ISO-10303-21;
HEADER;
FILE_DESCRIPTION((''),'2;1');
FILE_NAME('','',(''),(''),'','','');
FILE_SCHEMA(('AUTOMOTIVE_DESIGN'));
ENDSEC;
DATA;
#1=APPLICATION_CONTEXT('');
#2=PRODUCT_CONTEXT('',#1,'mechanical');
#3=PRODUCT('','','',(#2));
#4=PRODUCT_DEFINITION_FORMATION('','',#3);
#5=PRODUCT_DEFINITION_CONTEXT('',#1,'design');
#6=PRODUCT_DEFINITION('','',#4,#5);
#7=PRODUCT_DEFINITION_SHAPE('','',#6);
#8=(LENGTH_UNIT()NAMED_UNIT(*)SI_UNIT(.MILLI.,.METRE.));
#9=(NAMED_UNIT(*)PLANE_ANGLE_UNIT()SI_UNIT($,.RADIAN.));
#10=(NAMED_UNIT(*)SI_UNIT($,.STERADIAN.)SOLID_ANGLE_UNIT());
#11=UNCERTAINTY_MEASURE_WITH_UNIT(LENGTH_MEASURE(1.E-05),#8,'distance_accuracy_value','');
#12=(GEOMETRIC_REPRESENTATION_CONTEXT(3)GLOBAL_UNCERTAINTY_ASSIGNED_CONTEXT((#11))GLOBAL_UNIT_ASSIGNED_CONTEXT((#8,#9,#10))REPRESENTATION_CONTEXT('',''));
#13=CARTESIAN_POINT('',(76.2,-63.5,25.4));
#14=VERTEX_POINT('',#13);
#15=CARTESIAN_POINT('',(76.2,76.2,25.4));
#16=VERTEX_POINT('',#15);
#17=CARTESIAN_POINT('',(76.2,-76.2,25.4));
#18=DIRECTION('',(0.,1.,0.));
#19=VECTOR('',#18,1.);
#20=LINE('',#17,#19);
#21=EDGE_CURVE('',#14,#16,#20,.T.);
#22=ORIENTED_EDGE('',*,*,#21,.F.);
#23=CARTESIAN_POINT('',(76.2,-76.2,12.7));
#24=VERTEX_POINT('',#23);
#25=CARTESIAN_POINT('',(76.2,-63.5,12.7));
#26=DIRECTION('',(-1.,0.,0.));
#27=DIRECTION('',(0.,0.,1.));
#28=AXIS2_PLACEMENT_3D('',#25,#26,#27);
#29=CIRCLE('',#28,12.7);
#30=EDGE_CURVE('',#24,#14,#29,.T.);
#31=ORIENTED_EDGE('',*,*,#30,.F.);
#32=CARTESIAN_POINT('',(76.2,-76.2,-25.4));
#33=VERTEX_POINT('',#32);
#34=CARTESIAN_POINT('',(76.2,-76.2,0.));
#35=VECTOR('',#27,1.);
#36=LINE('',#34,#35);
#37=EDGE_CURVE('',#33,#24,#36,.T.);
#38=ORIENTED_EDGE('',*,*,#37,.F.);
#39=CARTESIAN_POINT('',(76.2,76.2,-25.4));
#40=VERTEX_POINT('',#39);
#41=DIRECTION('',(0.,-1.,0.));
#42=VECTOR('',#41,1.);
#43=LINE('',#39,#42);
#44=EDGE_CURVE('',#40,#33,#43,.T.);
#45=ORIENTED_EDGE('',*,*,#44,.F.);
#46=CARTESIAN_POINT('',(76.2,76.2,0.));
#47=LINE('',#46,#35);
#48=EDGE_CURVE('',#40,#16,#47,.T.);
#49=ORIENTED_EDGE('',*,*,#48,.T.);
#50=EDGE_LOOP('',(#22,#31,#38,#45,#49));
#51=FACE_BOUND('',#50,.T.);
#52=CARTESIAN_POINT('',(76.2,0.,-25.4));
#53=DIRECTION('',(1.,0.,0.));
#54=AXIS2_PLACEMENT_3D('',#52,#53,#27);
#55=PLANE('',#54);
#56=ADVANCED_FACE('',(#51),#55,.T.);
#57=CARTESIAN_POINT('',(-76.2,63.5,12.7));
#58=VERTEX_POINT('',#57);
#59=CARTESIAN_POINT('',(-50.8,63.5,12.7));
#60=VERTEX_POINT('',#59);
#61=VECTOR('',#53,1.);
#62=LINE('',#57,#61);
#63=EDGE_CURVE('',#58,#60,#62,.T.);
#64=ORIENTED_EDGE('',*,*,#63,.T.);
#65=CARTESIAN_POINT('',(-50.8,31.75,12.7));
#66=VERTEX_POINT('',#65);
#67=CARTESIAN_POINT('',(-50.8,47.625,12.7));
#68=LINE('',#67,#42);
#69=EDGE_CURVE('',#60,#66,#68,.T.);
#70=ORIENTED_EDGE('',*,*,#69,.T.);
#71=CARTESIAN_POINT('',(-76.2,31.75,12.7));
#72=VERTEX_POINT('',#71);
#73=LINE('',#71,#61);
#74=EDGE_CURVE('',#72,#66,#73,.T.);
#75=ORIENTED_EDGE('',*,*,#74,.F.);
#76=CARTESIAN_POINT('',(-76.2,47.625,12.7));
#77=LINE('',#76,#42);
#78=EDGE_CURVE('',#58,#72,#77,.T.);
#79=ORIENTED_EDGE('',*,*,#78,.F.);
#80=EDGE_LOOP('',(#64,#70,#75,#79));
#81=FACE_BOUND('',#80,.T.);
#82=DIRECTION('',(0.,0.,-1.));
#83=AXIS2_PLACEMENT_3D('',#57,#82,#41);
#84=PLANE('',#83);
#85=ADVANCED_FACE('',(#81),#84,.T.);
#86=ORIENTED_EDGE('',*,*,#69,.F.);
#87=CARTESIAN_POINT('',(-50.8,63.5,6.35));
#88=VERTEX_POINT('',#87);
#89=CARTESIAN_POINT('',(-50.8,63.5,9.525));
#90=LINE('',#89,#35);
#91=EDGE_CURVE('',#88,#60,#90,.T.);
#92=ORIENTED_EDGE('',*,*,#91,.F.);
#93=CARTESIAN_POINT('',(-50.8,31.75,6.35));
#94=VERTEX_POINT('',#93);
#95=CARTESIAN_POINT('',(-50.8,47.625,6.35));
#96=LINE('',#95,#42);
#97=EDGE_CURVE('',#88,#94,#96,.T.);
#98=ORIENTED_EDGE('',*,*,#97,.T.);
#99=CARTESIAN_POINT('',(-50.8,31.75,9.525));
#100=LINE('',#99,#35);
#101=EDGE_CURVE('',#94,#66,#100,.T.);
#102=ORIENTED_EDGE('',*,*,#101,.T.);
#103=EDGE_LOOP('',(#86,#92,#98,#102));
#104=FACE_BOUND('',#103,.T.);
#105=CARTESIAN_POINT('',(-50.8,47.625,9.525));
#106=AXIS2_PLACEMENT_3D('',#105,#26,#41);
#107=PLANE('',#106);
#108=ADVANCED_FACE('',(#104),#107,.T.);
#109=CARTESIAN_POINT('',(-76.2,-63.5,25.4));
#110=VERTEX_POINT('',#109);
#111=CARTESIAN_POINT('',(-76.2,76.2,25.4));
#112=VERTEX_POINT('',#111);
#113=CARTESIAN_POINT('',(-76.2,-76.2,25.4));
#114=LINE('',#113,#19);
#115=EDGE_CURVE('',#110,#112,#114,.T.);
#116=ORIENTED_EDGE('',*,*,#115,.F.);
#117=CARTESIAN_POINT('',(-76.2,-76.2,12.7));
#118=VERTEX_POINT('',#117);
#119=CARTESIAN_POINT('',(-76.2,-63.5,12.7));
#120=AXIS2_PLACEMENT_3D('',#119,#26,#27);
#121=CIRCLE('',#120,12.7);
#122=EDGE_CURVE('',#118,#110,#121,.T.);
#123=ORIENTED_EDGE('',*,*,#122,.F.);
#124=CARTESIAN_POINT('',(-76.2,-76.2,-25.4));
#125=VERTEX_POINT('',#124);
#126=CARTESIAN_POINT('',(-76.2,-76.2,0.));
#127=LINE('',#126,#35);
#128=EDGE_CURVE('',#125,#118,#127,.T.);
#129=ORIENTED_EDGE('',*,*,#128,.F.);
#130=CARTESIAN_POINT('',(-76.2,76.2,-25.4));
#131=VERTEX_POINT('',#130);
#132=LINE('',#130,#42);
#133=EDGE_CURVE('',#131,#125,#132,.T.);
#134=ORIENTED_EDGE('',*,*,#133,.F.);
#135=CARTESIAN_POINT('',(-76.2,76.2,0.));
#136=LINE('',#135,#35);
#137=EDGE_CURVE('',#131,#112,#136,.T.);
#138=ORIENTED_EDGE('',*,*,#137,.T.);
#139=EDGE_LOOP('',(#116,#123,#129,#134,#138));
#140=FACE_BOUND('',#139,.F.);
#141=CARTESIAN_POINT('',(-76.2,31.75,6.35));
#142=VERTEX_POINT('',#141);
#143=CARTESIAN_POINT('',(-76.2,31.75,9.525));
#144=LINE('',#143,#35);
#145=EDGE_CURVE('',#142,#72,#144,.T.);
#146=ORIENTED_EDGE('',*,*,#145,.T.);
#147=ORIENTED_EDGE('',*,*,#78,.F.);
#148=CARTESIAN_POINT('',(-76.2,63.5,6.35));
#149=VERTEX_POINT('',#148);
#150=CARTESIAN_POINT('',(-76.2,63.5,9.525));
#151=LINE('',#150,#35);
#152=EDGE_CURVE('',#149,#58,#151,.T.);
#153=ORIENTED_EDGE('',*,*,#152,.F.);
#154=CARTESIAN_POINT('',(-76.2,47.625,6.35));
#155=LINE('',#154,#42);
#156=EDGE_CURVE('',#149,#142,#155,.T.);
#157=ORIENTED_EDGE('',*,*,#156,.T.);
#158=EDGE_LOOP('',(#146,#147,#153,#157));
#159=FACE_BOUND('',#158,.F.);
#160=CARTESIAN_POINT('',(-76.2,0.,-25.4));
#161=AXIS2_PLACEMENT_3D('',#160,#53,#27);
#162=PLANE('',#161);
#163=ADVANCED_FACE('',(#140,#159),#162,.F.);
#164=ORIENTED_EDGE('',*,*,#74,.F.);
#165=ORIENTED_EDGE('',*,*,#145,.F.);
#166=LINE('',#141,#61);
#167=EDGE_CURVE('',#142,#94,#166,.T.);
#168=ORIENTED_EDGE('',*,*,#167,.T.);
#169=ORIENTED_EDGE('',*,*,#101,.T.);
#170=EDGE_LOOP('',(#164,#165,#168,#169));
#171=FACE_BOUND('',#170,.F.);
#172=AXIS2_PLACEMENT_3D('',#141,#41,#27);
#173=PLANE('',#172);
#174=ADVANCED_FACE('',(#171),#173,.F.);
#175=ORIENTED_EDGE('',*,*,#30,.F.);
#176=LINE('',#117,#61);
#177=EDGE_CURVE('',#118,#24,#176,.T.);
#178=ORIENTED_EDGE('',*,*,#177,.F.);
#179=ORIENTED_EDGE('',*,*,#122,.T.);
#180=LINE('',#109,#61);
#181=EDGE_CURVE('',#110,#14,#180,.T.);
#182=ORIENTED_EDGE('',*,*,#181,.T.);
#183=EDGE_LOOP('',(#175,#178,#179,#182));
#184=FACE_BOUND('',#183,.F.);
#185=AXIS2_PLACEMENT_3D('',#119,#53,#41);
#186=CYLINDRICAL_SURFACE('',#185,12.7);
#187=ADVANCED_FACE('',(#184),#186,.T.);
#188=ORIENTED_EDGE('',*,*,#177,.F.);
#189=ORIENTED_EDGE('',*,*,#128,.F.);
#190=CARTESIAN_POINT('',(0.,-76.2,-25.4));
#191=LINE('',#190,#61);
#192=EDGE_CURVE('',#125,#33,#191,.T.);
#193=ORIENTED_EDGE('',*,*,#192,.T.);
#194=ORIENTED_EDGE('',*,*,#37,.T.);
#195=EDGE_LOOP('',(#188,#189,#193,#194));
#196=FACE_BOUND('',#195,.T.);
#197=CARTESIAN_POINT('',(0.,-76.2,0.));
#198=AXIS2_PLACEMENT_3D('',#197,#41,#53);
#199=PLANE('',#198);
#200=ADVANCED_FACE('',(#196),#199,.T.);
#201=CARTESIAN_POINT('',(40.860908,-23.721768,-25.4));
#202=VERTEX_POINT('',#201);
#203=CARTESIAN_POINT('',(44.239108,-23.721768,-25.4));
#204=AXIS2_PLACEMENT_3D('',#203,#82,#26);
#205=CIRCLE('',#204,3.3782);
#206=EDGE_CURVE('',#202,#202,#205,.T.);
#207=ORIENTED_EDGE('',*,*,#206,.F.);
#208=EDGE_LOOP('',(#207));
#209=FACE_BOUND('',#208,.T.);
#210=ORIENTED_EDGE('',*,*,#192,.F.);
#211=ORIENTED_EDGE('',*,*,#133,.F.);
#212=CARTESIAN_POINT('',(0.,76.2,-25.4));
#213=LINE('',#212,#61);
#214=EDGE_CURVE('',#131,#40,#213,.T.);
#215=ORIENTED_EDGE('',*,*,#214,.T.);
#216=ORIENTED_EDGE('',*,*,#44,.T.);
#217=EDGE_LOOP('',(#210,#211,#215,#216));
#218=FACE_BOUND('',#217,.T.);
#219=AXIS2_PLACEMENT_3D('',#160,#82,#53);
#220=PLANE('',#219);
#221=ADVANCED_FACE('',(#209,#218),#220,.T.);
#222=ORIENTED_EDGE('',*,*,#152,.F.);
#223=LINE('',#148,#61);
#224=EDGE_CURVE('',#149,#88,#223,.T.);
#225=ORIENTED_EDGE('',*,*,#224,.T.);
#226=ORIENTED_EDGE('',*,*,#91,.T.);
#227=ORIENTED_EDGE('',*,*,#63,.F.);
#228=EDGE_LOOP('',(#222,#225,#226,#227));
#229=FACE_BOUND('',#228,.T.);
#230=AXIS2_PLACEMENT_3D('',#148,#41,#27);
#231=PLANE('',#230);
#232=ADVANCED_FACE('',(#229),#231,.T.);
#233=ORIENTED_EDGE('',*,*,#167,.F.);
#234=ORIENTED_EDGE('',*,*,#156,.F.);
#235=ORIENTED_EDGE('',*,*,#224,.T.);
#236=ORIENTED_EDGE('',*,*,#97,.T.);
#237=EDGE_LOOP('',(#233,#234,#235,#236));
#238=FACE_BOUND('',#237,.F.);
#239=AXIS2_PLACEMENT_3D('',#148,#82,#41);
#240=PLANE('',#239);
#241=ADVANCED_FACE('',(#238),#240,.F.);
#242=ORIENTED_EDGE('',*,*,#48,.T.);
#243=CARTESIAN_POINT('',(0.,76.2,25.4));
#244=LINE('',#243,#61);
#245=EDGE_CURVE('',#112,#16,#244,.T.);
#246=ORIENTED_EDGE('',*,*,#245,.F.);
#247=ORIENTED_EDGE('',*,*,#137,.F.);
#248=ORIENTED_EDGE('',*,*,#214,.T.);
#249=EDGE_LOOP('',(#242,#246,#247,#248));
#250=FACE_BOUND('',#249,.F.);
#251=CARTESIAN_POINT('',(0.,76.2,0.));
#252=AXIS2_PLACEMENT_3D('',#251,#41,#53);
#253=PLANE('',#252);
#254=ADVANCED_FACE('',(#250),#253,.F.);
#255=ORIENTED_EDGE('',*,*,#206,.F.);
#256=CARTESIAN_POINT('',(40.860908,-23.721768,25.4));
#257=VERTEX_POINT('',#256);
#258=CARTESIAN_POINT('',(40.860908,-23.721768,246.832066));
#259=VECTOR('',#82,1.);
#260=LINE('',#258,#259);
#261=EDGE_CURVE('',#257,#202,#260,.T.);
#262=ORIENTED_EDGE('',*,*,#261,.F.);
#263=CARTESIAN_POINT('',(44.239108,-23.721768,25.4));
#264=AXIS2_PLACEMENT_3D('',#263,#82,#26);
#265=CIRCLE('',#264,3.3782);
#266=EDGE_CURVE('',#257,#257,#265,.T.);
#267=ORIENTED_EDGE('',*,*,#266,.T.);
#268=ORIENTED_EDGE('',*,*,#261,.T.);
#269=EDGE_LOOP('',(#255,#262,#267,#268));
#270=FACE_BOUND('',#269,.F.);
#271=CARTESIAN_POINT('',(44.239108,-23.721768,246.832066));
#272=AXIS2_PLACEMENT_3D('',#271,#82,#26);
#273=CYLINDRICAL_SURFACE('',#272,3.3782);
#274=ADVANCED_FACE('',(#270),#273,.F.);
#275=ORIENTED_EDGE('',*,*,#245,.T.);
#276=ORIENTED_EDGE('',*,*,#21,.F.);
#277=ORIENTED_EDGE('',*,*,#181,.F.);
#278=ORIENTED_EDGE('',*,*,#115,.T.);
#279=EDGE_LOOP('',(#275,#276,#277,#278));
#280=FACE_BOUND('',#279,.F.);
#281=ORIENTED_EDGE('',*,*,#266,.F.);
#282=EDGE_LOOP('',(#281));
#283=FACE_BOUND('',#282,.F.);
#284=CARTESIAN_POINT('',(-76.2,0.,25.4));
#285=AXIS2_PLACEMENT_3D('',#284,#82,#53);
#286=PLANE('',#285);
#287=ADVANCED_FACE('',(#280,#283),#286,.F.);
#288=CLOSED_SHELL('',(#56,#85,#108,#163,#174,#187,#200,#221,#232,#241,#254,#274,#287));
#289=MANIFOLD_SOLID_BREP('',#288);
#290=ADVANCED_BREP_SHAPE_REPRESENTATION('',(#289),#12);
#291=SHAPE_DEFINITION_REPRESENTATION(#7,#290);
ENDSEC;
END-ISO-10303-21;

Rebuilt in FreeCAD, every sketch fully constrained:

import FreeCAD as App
import Part
import Sketcher
from FreeCAD import Vector
Q = App.Units.Quantity


def edges_at(feature, points):
    """Names of the edges that pass closest to the given points."""
    edges = feature.Shape.Edges
    near = lambda p: min(range(len(edges)), key=lambda i: edges[i].distToShape(Part.Vertex(*p))[0])
    return sorted({f"Edge{near(p) + 1}" for p in points})

doc = App.newDocument("Part")
body = doc.addObject("PartDesign::Body", "Body")

# Sketch on XZ plane
sketch1 = doc.addObject("Sketcher::SketchObject", "Sketch")
body.addObject(sketch1)
sketch1.AttachmentSupport = (doc.XZ_Plane, [""])
sketch1.MapMode = "FlatFace"
sketch1.addGeometry([
    Part.LineSegment(Vector(-76, 25, 0), Vector(-76, -25, 0)),
    Part.LineSegment(Vector(-76, -25, 0), Vector(76, -25, 0)),
    Part.LineSegment(Vector(76, -25, 0), Vector(76, 25, 0)),
    Part.LineSegment(Vector(76, 25, 0), Vector(-76, 25, 0)),
], False)
sketch1.addConstraint([
    Sketcher.Constraint("Coincident", 0, 2, 1, 1),
    Sketcher.Constraint("Coincident", 1, 2, 2, 1),
    Sketcher.Constraint("Coincident", 2, 2, 3, 1),
    Sketcher.Constraint("Coincident", 3, 2, 0, 1),
    Sketcher.Constraint("Vertical", 0),
    Sketcher.Constraint("Horizontal", 1),
    Sketcher.Constraint("Vertical", 2),
    Sketcher.Constraint("Horizontal", 3),
    Sketcher.Constraint("Symmetric", 0, 2, 2, 2, -1, 1),
    Sketcher.Constraint("DistanceX", 1, 1, 1, 2, Q("6 in")),
    Sketcher.Constraint("DistanceY", 0, 2, 0, 1, Q("2 in")),
])
pad1 = doc.addObject("PartDesign::Pad", "Pad")
body.addObject(pad1)
pad1.Profile = sketch1
pad1.Length = Q("6 in")
pad1.Midplane = True
doc.recompute()

fillet = doc.addObject("PartDesign::Fillet", "Fillet")
body.addObject(fillet)
fillet.Base = (pad1, edges_at(pad1, [(0, -76.2, 25.4)]))
fillet.Radius = Q("0.5 in")

# Sketch on XY plane
sketch2 = doc.addObject("Sketcher::SketchObject", "Sketch001")
body.addObject(sketch2)
sketch2.AttachmentSupport = (doc.XY_Plane, [""])
sketch2.MapMode = "FlatFace"
sketch2.AttachmentOffset = App.Placement(Vector(0, 0, 1 * 25.4), App.Rotation())
sketch2.addGeometry(Part.Circle(Vector(44.2, -23.7, 0), Vector(0, 0, 1), 3.4), False)
sketch2.addConstraint([
    Sketcher.Constraint("Diameter", 0, Q("0.266 in")),
    Sketcher.Constraint("DistanceX", -1, 1, 0, 3, Q("44.239108 mm")),
    Sketcher.Constraint("DistanceY", 0, 3, -1, 1, Q("23.721768 mm")),
])
doc.recompute()
hole = doc.addObject("PartDesign::Hole", "Hole")
body.addObject(hole)
hole.Profile = sketch2
hole.ThreadType = "None"
hole.Diameter = Q("0.266 in")
hole.DepthType = "ThroughAll"

# Sketch on YZ plane
sketch3 = doc.addObject("Sketcher::SketchObject", "Sketch002")
body.addObject(sketch3)
sketch3.AttachmentSupport = (doc.YZ_Plane, [""])
sketch3.MapMode = "FlatFace"
sketch3.AttachmentOffset = App.Placement(Vector(0, 0, -3 * 25.4), App.Rotation())
sketch3.addGeometry([
    Part.LineSegment(Vector(64, 13, 0), Vector(64, 6, 0)),
    Part.LineSegment(Vector(64, 6, 0), Vector(32, 6, 0)),
    Part.LineSegment(Vector(32, 6, 0), Vector(32, 13, 0)),
    Part.LineSegment(Vector(32, 13, 0), Vector(64, 13, 0)),
], False)
sketch3.addConstraint([
    Sketcher.Constraint("Coincident", 0, 2, 1, 1),
    Sketcher.Constraint("Coincident", 1, 2, 2, 1),
    Sketcher.Constraint("Coincident", 2, 2, 3, 1),
    Sketcher.Constraint("Coincident", 3, 2, 0, 1),
    Sketcher.Constraint("Vertical", 0),
    Sketcher.Constraint("Horizontal", 1),
    Sketcher.Constraint("Vertical", 2),
    Sketcher.Constraint("Horizontal", 3),
    Sketcher.Constraint("DistanceX", 1, 2, 1, 1, Q("1.25 in")),
    Sketcher.Constraint("DistanceY", 0, 2, 0, 1, Q("0.25 in")),
    Sketcher.Constraint("DistanceX", -1, 1, 0, 2, Q("2.5 in")),
    Sketcher.Constraint("DistanceY", -1, 1, 2, 2, Q("0.5 in")),
])
pocket1 = doc.addObject("PartDesign::Pocket", "Pocket")
body.addObject(pocket1)
pocket1.Profile = sketch3
pocket1.Length = Q("1 in")
pocket1.Reversed = True

doc.recompute()
